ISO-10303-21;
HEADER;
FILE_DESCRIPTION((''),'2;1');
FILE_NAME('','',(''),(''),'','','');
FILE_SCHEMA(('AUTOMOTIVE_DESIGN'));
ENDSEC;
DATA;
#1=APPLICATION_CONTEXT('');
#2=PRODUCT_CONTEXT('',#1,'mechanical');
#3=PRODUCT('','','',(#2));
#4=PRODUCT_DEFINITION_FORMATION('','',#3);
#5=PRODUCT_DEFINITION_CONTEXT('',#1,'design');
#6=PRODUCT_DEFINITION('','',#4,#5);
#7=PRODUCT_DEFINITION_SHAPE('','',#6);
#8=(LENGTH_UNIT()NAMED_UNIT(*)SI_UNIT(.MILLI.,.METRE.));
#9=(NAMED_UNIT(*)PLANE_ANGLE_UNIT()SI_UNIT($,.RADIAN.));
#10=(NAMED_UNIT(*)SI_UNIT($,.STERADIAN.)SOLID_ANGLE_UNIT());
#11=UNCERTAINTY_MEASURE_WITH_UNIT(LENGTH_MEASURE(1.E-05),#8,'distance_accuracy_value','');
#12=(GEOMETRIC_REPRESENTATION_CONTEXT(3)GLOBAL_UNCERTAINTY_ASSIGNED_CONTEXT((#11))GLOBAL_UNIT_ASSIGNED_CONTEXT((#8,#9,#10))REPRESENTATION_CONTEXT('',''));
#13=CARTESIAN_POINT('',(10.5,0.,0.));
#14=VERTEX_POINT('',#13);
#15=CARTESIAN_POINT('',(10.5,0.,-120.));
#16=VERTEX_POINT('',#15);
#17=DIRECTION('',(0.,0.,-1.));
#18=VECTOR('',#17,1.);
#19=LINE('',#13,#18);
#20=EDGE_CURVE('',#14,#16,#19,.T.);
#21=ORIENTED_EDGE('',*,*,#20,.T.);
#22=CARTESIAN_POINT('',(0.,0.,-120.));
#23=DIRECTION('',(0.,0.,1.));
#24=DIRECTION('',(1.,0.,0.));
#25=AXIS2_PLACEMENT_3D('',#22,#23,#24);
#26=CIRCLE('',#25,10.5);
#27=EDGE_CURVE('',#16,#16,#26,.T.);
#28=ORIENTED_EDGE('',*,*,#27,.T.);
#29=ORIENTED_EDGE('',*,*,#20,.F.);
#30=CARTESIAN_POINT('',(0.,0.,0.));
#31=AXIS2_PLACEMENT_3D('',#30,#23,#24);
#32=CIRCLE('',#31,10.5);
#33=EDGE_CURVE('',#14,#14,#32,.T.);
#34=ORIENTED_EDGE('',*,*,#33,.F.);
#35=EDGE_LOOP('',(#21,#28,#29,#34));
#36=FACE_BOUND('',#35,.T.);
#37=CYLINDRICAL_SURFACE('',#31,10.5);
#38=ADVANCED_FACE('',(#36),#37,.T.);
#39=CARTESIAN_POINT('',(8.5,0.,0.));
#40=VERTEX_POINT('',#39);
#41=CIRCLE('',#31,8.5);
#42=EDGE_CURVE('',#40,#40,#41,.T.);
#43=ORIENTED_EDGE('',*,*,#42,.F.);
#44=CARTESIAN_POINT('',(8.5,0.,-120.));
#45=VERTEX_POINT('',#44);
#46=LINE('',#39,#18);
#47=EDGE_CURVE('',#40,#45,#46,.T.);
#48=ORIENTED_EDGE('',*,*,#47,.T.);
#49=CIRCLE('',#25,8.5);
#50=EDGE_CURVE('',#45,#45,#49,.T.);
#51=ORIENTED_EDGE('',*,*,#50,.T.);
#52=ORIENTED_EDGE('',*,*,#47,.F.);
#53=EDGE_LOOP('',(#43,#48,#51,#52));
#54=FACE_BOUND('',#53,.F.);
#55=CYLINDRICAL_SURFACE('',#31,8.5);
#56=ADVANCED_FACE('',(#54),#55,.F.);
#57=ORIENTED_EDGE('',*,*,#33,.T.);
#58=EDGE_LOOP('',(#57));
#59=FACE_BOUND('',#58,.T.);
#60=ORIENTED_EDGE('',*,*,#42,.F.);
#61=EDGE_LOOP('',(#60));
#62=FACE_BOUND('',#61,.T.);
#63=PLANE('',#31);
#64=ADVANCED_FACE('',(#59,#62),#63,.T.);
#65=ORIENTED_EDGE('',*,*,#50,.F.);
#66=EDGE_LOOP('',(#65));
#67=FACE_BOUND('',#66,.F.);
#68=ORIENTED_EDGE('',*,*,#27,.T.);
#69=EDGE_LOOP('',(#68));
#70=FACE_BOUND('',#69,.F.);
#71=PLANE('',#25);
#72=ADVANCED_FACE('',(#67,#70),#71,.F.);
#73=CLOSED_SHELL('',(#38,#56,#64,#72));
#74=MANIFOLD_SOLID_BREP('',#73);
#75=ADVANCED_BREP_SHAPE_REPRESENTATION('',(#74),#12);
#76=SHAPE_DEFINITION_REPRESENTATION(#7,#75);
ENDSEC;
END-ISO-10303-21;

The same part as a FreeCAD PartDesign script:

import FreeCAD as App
import Part
import Sketcher

doc = App.newDocument("Part")
body = doc.addObject("PartDesign::Body", "Body")

sketch1 = doc.addObject("Sketcher::SketchObject", "Sketch")
body.addObject(sketch1)
sketch1.AttachmentSupport = (doc.XY_Plane, [""])
sketch1.MapMode = "FlatFace"
sketch1.addGeometry([
    Part.Circle(App.Vector(0, 0, 0), App.Vector(0, 0, 1), 10),
    Part.Circle(App.Vector(0, 0, 0), App.Vector(0, 0, 1), 8),
], False)
sketch1.addConstraint([
    Sketcher.Constraint("Coincident", 0, 3, -1, 1),
    Sketcher.Constraint("Coincident", 1, 3, -1, 1),
    Sketcher.Constraint("Diameter", 0, 21.0),
    Sketcher.Constraint("Diameter", 1, 17.0),
])
pad1 = doc.addObject("PartDesign::Pad", "Pad")
body.addObject(pad1)
pad1.Profile = sketch1
pad1.Length = 120
pad1.Reversed = True

doc.recompute()
